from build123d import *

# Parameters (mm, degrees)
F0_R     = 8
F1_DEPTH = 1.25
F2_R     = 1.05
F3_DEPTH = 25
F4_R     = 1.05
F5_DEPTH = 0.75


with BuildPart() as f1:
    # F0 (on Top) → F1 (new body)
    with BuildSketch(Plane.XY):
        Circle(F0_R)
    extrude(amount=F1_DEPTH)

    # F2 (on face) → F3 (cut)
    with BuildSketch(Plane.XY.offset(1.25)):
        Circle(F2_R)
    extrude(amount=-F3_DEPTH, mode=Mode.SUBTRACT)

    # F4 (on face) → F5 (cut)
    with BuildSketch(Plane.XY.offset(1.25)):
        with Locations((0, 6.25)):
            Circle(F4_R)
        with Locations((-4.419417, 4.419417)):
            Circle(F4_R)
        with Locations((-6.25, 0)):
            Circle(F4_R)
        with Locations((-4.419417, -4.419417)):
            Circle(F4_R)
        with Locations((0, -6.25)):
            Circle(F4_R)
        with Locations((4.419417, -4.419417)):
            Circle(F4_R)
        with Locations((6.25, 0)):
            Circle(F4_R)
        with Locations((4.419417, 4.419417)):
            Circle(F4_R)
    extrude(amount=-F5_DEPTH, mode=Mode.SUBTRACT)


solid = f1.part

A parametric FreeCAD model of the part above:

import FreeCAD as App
import Part
import Sketcher
from FreeCAD import Vector

doc = App.newDocument("Part")
params = doc.addObject("Spreadsheet::Sheet", "Params")
for row, (alias, value) in enumerate([
    ("sketch1_diameter", "16 mm"),
    ("pad1_length", "1.25 mm"),
    ("sketch2_diameter", "2.1 mm"),
    ("pocket1_length", "25 mm"),
    ("sketch3_diameter", "2.1 mm"),
    ("pocket2_length", "0.75 mm"),
], start=1):
    params.set(f"A{row}", alias)
    params.set(f"B{row}", "=" + value)
    params.setAlias(f"B{row}", alias)

body = doc.addObject("PartDesign::Body", "Body")

sketch1 = body.newObject("Sketcher::SketchObject", "Sketch")
sketch1.AttachmentSupport = (doc.getObject("XY_Plane"), [""])
sketch1.MapMode = "FlatFace"
sketch1.addGeometry(Part.Circle(Vector(0, 0, 0), Vector(0, 0, 1), 8), False)
sketch1.addConstraint(Sketcher.Constraint("Coincident", 0, 3, -1, 1))
sketch1.addConstraint(Sketcher.Constraint("Diameter", 0, 16.0))
sketch1.setExpression("Constraints[1]", "Params.sketch1_diameter")
pad1 = body.newObject("PartDesign::Pad", "Pad")
pad1.Profile = sketch1
pad1.setExpression("Length", "Params.pad1_length")

sketch2 = body.newObject("Sketcher::SketchObject", "Sketch001")
sketch2.AttachmentSupport = (doc.getObject("XY_Plane"), [""])
sketch2.MapMode = "FlatFace"
sketch2.AttachmentOffset = App.Placement(Vector(0, 0, 1.25), App.Rotation())
sketch2.addGeometry(Part.Circle(Vector(0, 0, 0), Vector(0, 0, 1), 1.1), False)
sketch2.addConstraint(Sketcher.Constraint("Coincident", 0, 3, -1, 1))
sketch2.addConstraint(Sketcher.Constraint("Diameter", 0, 2.1))
sketch2.setExpression("Constraints[1]", "Params.sketch2_diameter")
pocket1 = body.newObject("PartDesign::Pocket", "Pocket")
pocket1.Profile = sketch2
pocket1.setExpression("Length", "Params.pocket1_length")

sketch3 = body.newObject("Sketcher::SketchObject", "Sketch002")
sketch3.AttachmentSupport = (doc.getObject("XY_Plane"), [""])
sketch3.MapMode = "FlatFace"
sketch3.AttachmentOffset = App.Placement(Vector(0, 0, 1.25), App.Rotation())
sketch3.addGeometry(Part.Circle(Vector(0, 6.2, 0), Vector(0, 0, 1), 1.1), False)
sketch3.addGeometry(Part.Circle(Vector(-4.4, 4.4, 0), Vector(0, 0, 1), 1.1), False)
sketch3.addGeometry(Part.Circle(Vector(-6.2, 0, 0), Vector(0, 0, 1), 1.1), False)
sketch3.addGeometry(Part.Circle(Vector(-4.4, -4.4, 0), Vector(0, 0, 1), 1.1), False)
sketch3.addGeometry(Part.Circle(Vector(0, -6.2, 0), Vector(0, 0, 1), 1.1), False)
sketch3.addGeometry(Part.Circle(Vector(4.4, -4.4, 0), Vector(0, 0, 1), 1.1), False)
sketch3.addGeometry(Part.Circle(Vector(6.2, 0, 0), Vector(0, 0, 1), 1.1), False)
sketch3.addGeometry(Part.Circle(Vector(4.4, 4.4, 0), Vector(0, 0, 1), 1.1), False)
sketch3.addConstraint(Sketcher.Constraint("Equal", 0, 1))
sketch3.addConstraint(Sketcher.Constraint("Equal", 1, 2))
sketch3.addConstraint(Sketcher.Constraint("Equal", 2, 3))
sketch3.addConstraint(Sketcher.Constraint("Equal", 3, 4))
sketch3.addConstraint(Sketcher.Constraint("Equal", 4, 5))
sketch3.addConstraint(Sketcher.Constraint("Equal", 5, 6))
sketch3.addConstraint(Sketcher.Constraint("Equal", 6, 7))
sketch3.addConstraint(Sketcher.Constraint("Symmetric", 0, 3, 4, 3, -1, 1))
sketch3.addConstraint(Sketcher.Constraint("Symmetric", 1, 3, 5, 3, -1, 1))
sketch3.addConstraint(Sketcher.Constraint("Symmetric", 2, 3, 6, 3, -1, 1))
sketch3.addConstraint(Sketcher.Constraint("Symmetric", 3, 3, 7, 3, -1, 1))
sketch3.addConstraint(Sketcher.Constraint("Symmetric", 3, 3, 5, 3, -2))
sketch3.addConstraint(Sketcher.Constraint("PointOnObject", 0, 3, -2))
sketch3.addConstraint(Sketcher.Constraint("PointOnObject", 2, 3, -1))
sketch3.addConstraint(Sketcher.Constraint("Diameter", 0, 2.1))
sketch3.addConstraint(Sketcher.Constraint("DistanceY", 4, 3, 0, 3, 12.5))
sketch3.addConstraint(Sketcher.Constraint("DistanceX", 2, 3, -1, 1, 6.25))
sketch3.addConstraint(Sketcher.Constraint("DistanceX", 1, 3, -1, 1, 4.419417))
sketch3.addConstraint(Sketcher.Constraint("DistanceY", -1, 1, 1, 3, 4.419417))
sketch3.setExpression("Constraints[14]", "Params.sketch3_diameter")
pocket2 = body.newObject("PartDesign::Pocket", "Pocket001")
pocket2.Profile = sketch3
pocket2.setExpression("Length", "Params.pocket2_length")

doc.recompute()
